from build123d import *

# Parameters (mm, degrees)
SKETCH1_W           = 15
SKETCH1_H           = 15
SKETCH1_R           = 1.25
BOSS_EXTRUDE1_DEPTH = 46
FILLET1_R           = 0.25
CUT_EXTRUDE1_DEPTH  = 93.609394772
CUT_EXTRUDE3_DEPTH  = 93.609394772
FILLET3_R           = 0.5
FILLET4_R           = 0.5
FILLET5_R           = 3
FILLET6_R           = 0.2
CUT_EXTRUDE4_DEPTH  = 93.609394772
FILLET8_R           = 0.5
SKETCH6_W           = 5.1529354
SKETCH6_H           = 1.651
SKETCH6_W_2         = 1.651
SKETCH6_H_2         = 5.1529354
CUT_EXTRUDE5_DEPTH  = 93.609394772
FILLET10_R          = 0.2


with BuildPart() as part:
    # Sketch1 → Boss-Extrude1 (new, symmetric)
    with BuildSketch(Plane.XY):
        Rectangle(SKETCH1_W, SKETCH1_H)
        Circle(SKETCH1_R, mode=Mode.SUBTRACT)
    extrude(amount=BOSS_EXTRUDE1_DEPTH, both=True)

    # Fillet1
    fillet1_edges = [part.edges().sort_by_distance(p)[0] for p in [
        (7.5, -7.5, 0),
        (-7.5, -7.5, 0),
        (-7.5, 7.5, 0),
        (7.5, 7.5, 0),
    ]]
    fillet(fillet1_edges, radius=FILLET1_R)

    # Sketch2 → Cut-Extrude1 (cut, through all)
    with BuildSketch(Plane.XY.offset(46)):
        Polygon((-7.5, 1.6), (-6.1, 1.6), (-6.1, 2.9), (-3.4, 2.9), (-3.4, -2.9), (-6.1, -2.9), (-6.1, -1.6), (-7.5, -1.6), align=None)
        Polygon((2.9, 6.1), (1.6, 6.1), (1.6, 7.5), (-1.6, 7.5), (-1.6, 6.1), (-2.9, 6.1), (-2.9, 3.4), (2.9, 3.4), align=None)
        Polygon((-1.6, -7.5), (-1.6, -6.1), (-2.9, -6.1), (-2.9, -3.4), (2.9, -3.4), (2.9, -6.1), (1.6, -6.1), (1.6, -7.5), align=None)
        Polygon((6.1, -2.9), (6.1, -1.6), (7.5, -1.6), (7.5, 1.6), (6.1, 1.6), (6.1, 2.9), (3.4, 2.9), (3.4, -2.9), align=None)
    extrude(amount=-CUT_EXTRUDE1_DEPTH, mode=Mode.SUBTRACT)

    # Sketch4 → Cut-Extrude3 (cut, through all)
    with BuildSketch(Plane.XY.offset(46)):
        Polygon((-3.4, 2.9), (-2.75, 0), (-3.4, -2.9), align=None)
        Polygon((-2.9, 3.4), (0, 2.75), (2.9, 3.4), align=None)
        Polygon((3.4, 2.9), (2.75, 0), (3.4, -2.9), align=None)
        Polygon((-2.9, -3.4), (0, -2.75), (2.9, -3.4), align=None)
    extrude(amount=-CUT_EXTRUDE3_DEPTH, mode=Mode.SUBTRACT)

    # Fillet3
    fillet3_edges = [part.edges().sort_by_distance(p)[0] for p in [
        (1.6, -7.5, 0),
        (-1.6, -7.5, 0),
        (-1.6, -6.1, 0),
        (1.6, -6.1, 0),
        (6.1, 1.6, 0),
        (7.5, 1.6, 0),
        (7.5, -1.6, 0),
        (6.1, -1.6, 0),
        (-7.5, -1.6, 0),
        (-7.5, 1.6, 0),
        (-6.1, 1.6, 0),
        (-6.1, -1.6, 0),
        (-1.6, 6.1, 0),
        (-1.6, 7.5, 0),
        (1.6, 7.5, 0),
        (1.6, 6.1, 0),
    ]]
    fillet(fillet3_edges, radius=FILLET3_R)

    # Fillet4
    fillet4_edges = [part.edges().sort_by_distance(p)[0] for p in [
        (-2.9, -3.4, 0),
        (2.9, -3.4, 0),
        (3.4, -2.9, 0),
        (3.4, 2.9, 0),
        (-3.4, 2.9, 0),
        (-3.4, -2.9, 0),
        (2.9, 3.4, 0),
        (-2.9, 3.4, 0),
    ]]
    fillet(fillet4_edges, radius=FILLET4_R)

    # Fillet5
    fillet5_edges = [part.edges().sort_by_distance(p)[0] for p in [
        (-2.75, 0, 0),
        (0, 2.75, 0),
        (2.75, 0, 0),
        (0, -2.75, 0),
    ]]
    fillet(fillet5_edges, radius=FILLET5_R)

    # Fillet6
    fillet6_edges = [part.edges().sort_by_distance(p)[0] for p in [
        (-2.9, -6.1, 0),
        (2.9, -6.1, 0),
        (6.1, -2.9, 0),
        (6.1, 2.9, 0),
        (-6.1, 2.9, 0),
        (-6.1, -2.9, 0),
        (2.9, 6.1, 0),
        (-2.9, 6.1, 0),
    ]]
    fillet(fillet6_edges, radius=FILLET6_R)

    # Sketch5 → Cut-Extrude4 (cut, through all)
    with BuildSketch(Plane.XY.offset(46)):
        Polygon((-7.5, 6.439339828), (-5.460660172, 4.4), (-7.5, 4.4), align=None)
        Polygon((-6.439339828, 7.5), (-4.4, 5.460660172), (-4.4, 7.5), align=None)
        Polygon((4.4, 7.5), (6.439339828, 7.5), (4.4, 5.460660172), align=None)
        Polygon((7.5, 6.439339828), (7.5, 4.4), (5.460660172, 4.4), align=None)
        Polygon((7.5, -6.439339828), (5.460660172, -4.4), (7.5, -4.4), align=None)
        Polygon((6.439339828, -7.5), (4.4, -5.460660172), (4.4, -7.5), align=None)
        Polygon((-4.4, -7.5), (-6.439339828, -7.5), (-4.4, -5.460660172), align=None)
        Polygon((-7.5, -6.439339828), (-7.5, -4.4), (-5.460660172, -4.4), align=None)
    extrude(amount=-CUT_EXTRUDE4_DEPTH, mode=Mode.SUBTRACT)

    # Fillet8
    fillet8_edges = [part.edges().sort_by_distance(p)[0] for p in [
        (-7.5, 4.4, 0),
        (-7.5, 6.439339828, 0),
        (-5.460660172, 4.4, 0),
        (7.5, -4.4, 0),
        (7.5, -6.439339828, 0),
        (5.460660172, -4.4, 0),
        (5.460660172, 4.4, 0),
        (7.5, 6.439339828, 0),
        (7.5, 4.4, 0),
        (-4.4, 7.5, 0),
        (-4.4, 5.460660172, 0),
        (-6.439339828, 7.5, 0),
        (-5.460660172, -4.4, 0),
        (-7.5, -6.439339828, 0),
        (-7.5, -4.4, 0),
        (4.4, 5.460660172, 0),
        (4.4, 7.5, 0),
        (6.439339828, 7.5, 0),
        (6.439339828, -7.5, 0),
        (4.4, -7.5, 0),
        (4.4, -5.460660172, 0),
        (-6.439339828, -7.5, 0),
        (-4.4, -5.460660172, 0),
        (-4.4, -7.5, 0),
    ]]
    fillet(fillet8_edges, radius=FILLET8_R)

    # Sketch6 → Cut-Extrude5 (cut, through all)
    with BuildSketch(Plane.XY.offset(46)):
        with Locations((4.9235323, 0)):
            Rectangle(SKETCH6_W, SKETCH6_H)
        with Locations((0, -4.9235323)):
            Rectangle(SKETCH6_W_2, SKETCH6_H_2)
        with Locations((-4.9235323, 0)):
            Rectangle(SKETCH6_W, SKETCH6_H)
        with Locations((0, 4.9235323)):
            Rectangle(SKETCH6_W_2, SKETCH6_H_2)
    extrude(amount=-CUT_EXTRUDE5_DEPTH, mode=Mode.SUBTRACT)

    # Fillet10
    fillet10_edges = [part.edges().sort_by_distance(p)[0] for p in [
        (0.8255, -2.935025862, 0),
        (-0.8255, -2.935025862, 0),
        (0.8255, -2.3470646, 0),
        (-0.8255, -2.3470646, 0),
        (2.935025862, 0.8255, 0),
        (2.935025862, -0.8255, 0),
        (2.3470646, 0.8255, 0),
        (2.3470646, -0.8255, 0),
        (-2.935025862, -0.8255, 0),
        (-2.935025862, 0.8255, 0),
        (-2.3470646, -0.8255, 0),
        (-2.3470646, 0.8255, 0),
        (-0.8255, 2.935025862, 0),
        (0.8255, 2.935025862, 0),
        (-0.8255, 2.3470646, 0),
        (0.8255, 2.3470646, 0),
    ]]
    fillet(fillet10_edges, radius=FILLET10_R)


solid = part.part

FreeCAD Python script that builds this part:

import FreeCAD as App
import Part
import Sketcher
Q = App.Units.Quantity


def edges_at(feature, points):
    """Names of the edges that pass closest to the given points."""
    edges = feature.Shape.Edges
    near = lambda p: min(range(len(edges)), key=lambda i: edges[i].distToShape(Part.Vertex(*p))[0])
    return sorted({f"Edge{near(p) + 1}" for p in points})

doc = App.newDocument("Part")
body = doc.addObject("PartDesign::Body", "Body")

# Sketch on XY plane
sketch1 = body.newObject("Sketcher::SketchObject", "Sketch")
sketch1.AttachmentSupport = (doc.getObject("XY_Plane"), [""])
sketch1.MapMode = "FlatFace"
sketch1.addGeometry([
    Part.LineSegment(App.Vector(-7.5, 7.5, 0), App.Vector(-7.5, -7.5, 0)),  # 0
    Part.LineSegment(App.Vector(-7.5, -7.5, 0), App.Vector(7.5, -7.5, 0)),  # 1
    Part.LineSegment(App.Vector(7.5, -7.5, 0), App.Vector(7.5, 7.5, 0)),  # 2
    Part.LineSegment(App.Vector(7.5, 7.5, 0), App.Vector(-7.5, 7.5, 0)),  # 3
    Part.Circle(App.Vector(0, 0, 0), App.Vector(0, 0, 1), 1.25),  # 4
], False)
sketch1.addConstraint([
    Sketcher.Constraint("Coincident", 0, 2, 1, 1),
    Sketcher.Constraint("Coincident", 1, 2, 2, 1),
    Sketcher.Constraint("Coincident", 2, 2, 3, 1),
    Sketcher.Constraint("Coincident", 3, 2, 0, 1),
    Sketcher.Constraint("Vertical", 0),
    Sketcher.Constraint("Horizontal", 1),
    Sketcher.Constraint("Vertical", 2),
    Sketcher.Constraint("Horizontal", 3),
    Sketcher.Constraint("Coincident", 4, 3, -1, 1),
    Sketcher.Constraint("Symmetric", 0, 2, 2, 2, -1, 1),
    Sketcher.Constraint("Equal", 3, 0),
    Sketcher.Constraint("Diameter", 4, Q("2.5 mm")),
    Sketcher.Constraint("DistanceX", 1, 1, 1, 2, Q("15 mm")),
])
pad1 = body.newObject("PartDesign::Pad", "Pad")
pad1.Profile = sketch1
pad1.Length = 92
pad1.Midplane = True
doc.recompute()

fillet = body.newObject("PartDesign::Fillet", "Fillet")
fillet.Base = (pad1, edges_at(pad1, [
    (7.5, -7.5, 0),
    (-7.5, -7.5, 0),
    (-7.5, 7.5, 0),
    (7.5, 7.5, 0),
]))
fillet.Radius = 0.25

# Sketch on XY plane
sketch2 = body.newObject("Sketcher::SketchObject", "Sketch001")
sketch2.AttachmentSupport = (doc.getObject("XY_Plane"), [""])
sketch2.MapMode = "FlatFace"
sketch2.AttachmentOffset = App.Placement(App.Vector(0, 0, 46), App.Rotation())
sketch2.addGeometry([
    Part.LineSegment(App.Vector(-6.1, 1.6, 0), App.Vector(-7.5, 1.6, 0)),  # 0
    Part.LineSegment(App.Vector(-7.5, 1.6, 0), App.Vector(-7.5, -1.6, 0)),  # 1
    Part.LineSegment(App.Vector(-7.5, -1.6, 0), App.Vector(-6.1, -1.6, 0)),  # 2
    Part.LineSegment(App.Vector(-6.1, -1.6, 0), App.Vector(-6.1, -2.9, 0)),  # 3
    Part.LineSegment(App.Vector(-6.1, -2.9, 0), App.Vector(-3.4, -2.9, 0)),  # 4
    Part.LineSegment(App.Vector(-3.4, -2.9, 0), App.Vector(-3.4, 2.9, 0)),  # 5
    Part.LineSegment(App.Vector(-3.4, 2.9, 0), App.Vector(-6.1, 2.9, 0)),  # 6
    Part.LineSegment(App.Vector(-6.1, 2.9, 0), App.Vector(-6.1, 1.6, 0)),  # 7
    Part.LineSegment(App.Vector(2.9, 6.1, 0), App.Vector(1.6, 6.1, 0)),  # 8
    Part.LineSegment(App.Vector(1.6, 6.1, 0), App.Vector(1.6, 7.5, 0)),  # 9
    Part.LineSegment(App.Vector(1.6, 7.5, 0), App.Vector(-1.6, 7.5, 0)),  # 10
    Part.LineSegment(App.Vector(-1.6, 7.5, 0), App.Vector(-1.6, 6.1, 0)),  # 11
    Part.LineSegment(App.Vector(-1.6, 6.1, 0), App.Vector(-2.9, 6.1, 0)),  # 12
    Part.LineSegment(App.Vector(-2.9, 6.1, 0), App.Vector(-2.9, 3.4, 0)),  # 13
    Part.LineSegment(App.Vector(-2.9, 3.4, 0), App.Vector(2.9, 3.4, 0)),  # 14
    Part.LineSegment(App.Vector(2.9, 3.4, 0), App.Vector(2.9, 6.1, 0)),  # 15
    Part.LineSegment(App.Vector(-1.6, -6.1, 0), App.Vector(-1.6, -7.5, 0)),  # 16
    Part.LineSegment(App.Vector(-1.6, -7.5, 0), App.Vector(1.6, -7.5, 0)),  # 17
    Part.LineSegment(App.Vector(1.6, -7.5, 0), App.Vector(1.6, -6.1, 0)),  # 18
    Part.LineSegment(App.Vector(1.6, -6.1, 0), App.Vector(2.9, -6.1, 0)),  # 19
    Part.LineSegment(App.Vector(2.9, -6.1, 0), App.Vector(2.9, -3.4, 0)),  # 20
    Part.LineSegment(App.Vector(2.9, -3.4, 0), App.Vector(-2.9, -3.4, 0)),  # 21
    Part.LineSegment(App.Vector(-2.9, -3.4, 0), App.Vector(-2.9, -6.1, 0)),  # 22
    Part.LineSegment(App.Vector(-2.9, -6.1, 0), App.Vector(-1.6, -6.1, 0)),  # 23
    Part.LineSegment(App.Vector(6.1, -2.9, 0), App.Vector(6.1, -1.6, 0)),  # 24
    Part.LineSegment(App.Vector(6.1, -1.6, 0), App.Vector(7.5, -1.6, 0)),  # 25
    Part.LineSegment(App.Vector(7.5, -1.6, 0), App.Vector(7.5, 1.6, 0)),  # 26
    Part.LineSegment(App.Vector(7.5, 1.6, 0), App.Vector(6.1, 1.6, 0)),  # 27
    Part.LineSegment(App.Vector(6.1, 1.6, 0), App.Vector(6.1, 2.9, 0)),  # 28
    Part.LineSegment(App.Vector(6.1, 2.9, 0), App.Vector(3.4, 2.9, 0)),  # 29
    Part.LineSegment(App.Vector(3.4, 2.9, 0), App.Vector(3.4, -2.9, 0)),  # 30
    Part.LineSegment(App.Vector(3.4, -2.9, 0), App.Vector(6.1, -2.9, 0)),  # 31
], False)
sketch2.addConstraint([
    Sketcher.Constraint("Coincident", 0, 2, 1, 1),
    Sketcher.Constraint("Coincident", 1, 2, 2, 1),
    Sketcher.Constraint("Coincident", 2, 2, 3, 1),
    Sketcher.Constraint("Coincident", 3, 2, 4, 1),
    Sketcher.Constraint("Coincident", 4, 2, 5, 1),
    Sketcher.Constraint("Coincident", 5, 2, 6, 1),
    Sketcher.Constraint("Coincident", 6, 2, 7, 1),
    Sketcher.Constraint("Coincident", 7, 2, 0, 1),
    Sketcher.Constraint("Coincident", 8, 2, 9, 1),
    Sketcher.Constraint("Coincident", 9, 2, 10, 1),
    Sketcher.Constraint("Coincident", 10, 2, 11, 1),
    Sketcher.Constraint("Coincident", 11, 2, 12, 1),
    Sketcher.Constraint("Coincident", 12, 2, 13, 1),
    Sketcher.Constraint("Coincident", 13, 2, 14, 1),
    Sketcher.Constraint("Coincident", 14, 2, 15, 1),
    Sketcher.Constraint("Coincident", 15, 2, 8, 1),
    Sketcher.Constraint("Coincident", 16, 2, 17, 1),
    Sketcher.Constraint("Coincident", 17, 2, 18, 1),
    Sketcher.Constraint("Coincident", 18, 2, 19, 1),
    Sketcher.Constraint("Coincident", 19, 2, 20, 1),
    Sketcher.Constraint("Coincident", 20, 2, 21, 1),
    Sketcher.Constraint("Coincident", 21, 2, 22, 1),
    Sketcher.Constraint("Coincident", 22, 2, 23, 1),
    Sketcher.Constraint("Coincident", 23, 2, 16, 1),
    Sketcher.Constraint("Coincident", 24, 2, 25, 1),
    Sketcher.Constraint("Coincident", 25, 2, 26, 1),
    Sketcher.Constraint("Coincident", 26, 2, 27, 1),
    Sketcher.Constraint("Coincident", 27, 2, 28, 1),
    Sketcher.Constraint("Coincident", 28, 2, 29, 1),
    Sketcher.Constraint("Coincident", 29, 2, 30, 1),
    Sketcher.Constraint("Coincident", 30, 2, 31, 1),
    Sketcher.Constraint("Coincident", 31, 2, 24, 1),
    Sketcher.Constraint("Horizontal", 0),
    Sketcher.Constraint("Vertical", 1),
    Sketcher.Constraint("Horizontal", 2),
    Sketcher.Constraint("Vertical", 3),
    Sketcher.Constraint("Horizontal", 4),
    Sketcher.Constraint("Vertical", 5),
    Sketcher.Constraint("Horizontal", 6),
    Sketcher.Constraint("Vertical", 7),
    Sketcher.Constraint("Horizontal", 8),
    Sketcher.Constraint("Vertical", 9),
    Sketcher.Constraint("Horizontal", 10),
    Sketcher.Constraint("Vertical", 11),
    Sketcher.Constraint("Horizontal", 12),
    Sketcher.Constraint("Vertical", 13),
    Sketcher.Constraint("Horizontal", 14),
    Sketcher.Constraint("Vertical", 15),
    Sketcher.Constraint("Vertical", 16),
    Sketcher.Constraint("Horizontal", 17),
    Sketcher.Constraint("Vertical", 18),
    Sketcher.Constraint("Horizontal", 19),
    Sketcher.Constraint("Vertical", 20),
    Sketcher.Constraint("Horizontal", 21),
    Sketcher.Constraint("Vertical", 22),
    Sketcher.Constraint("Horizontal", 23),
    Sketcher.Constraint("Vertical", 24),
    Sketcher.Constraint("Horizontal", 25),
    Sketcher.Constraint("Vertical", 26),
    Sketcher.Constraint("Horizontal", 27),
    Sketcher.Constraint("Vertical", 28),
    Sketcher.Constraint("Horizontal", 29),
    Sketcher.Constraint("Vertical", 30),
    Sketcher.Constraint("Horizontal", 31),
    Sketcher.Constraint("Symmetric", 9, 2, 16, 2, -1, 1),
    Sketcher.Constraint("Symmetric", 11, 2, 18, 2, -1, 1),
    Sketcher.Constraint("Symmetric", 13, 2, 20, 2, -1, 1),
    Sketcher.Constraint("Symmetric", 15, 2, 22, 2, -1, 1),
    Sketcher.Constraint("Symmetric", 7, 2, 24, 2, -1, 1),
    Sketcher.Constraint("Symmetric", 1, 2, 26, 2, -1, 1),
    Sketcher.Constraint("Symmetric", 3, 2, 28, 2, -1, 1),
    Sketcher.Constraint("Symmetric", 5, 2, 30, 2, -1, 1),
    Sketcher.Constraint("Symmetric", 8, 2, 11, 2, -2),
    Sketcher.Constraint("Symmetric", 2, 2, 24, 2, -2),
    Sketcher.Constraint("Horizontal", 6, 2, 28, 2),
    Sketcher.Constraint("Vertical", 15, 2, 19, 2),
    Sketcher.Constraint("Equal", 17, 1),
    Sketcher.Constraint("Equal", 23, 3),
    Sketcher.Constraint("Equal", 27, 9),
    Sketcher.Constraint("Equal", 31, 13),
    Sketcher.Constraint("DistanceX", 0, 2, 0, 1, Q("1.4 mm")),
    Sketcher.Constraint("DistanceX", 4, 1, 4, 2, Q("2.7 mm")),
    Sketcher.Constraint("DistanceX", 8, 2, 8, 1, Q("1.3 mm")),
    Sketcher.Constraint("DistanceX", 10, 2, 10, 1, Q("3.2 mm")),
    Sketcher.Constraint("DistanceX", 5, 2, 8, 2, Q("5 mm")),
    Sketcher.Constraint("DistanceY", 4, 2, 8, 2, Q("9 mm")),
])
pocket1 = body.newObject("PartDesign::Pocket", "Pocket")
pocket1.Profile = sketch2
pocket1.Type = "ThroughAll"

# Sketch on XY plane
sketch3 = body.newObject("Sketcher::SketchObject", "Sketch002")
sketch3.AttachmentSupport = (doc.getObject("XY_Plane"), [""])
sketch3.MapMode = "FlatFace"
sketch3.AttachmentOffset = App.Placement(App.Vector(0, 0, 46), App.Rotation())
sketch3.addGeometry([
    Part.LineSegment(App.Vector(-2.75, 0, 0), App.Vector(-3.4, 2.9, 0)),  # 0
    Part.LineSegment(App.Vector(-3.4, 2.9, 0), App.Vector(-3.4, -2.9, 0)),  # 1
    Part.LineSegment(App.Vector(-3.4, -2.9, 0), App.Vector(-2.75, 0, 0)),  # 2
    Part.LineSegment(App.Vector(-2.9, 3.4, 0), App.Vector(0, 2.75, 0)),  # 3
    Part.LineSegment(App.Vector(0, 2.75, 0), App.Vector(2.9, 3.4, 0)),  # 4
    Part.LineSegment(App.Vector(2.9, 3.4, 0), App.Vector(-2.9, 3.4, 0)),  # 5
    Part.LineSegment(App.Vector(3.4, 2.9, 0), App.Vector(2.75, 0, 0)),  # 6
    Part.LineSegment(App.Vector(2.75, 0, 0), App.Vector(3.4, -2.9, 0)),  # 7
    Part.LineSegment(App.Vector(3.4, -2.9, 0), App.Vector(3.4, 2.9, 0)),  # 8
    Part.LineSegment(App.Vector(0, -2.75, 0), App.Vector(-2.9, -3.4, 0)),  # 9
    Part.LineSegment(App.Vector(-2.9, -3.4, 0), App.Vector(2.9, -3.4, 0)),  # 10
    Part.LineSegment(App.Vector(2.9, -3.4, 0), App.Vector(0, -2.75, 0)),  # 11
], False)
sketch3.addConstraint([
    Sketcher.Constraint("Coincident", 0, 2, 1, 1),
    Sketcher.Constraint("Coincident", 1, 2, 2, 1),
    Sketcher.Constraint("Coincident", 2, 2, 0, 1),
    Sketcher.Constraint("Coincident", 3, 2, 4, 1),
    Sketcher.Constraint("Coincident", 4, 2, 5, 1),
    Sketcher.Constraint("Coincident", 5, 2, 3, 1),
    Sketcher.Constraint("Coincident", 6, 2, 7, 1),
    Sketcher.Constraint("Coincident", 7, 2, 8, 1),
    Sketcher.Constraint("Coincident", 8, 2, 6, 1),
    Sketcher.Constraint("Coincident", 9, 2, 10, 1),
    Sketcher.Constraint("Coincident", 10, 2, 11, 1),
    Sketcher.Constraint("Coincident", 11, 2, 9, 1),
    Sketcher.Constraint("Vertical", 1),
    Sketcher.Constraint("Horizontal", 5),
    Sketcher.Constraint("Vertical", 8),
    Sketcher.Constraint("Horizontal", 10),
    Sketcher.Constraint("Symmetric", 2, 2, 6, 2, -1, 1),
    Sketcher.Constraint("Symmetric", 0, 2, 7, 2, -1, 1),
    Sketcher.Constraint("Symmetric", 4, 2, 9, 2, -1, 1),
    Sketcher.Constraint("Symmetric", 3, 2, 11, 2, -1, 1),
    Sketcher.Constraint("PointOnObject", 2, 2, -1),
    Sketcher.Constraint("PointOnObject", 3, 2, -2),
    Sketcher.Constraint("Perpendicular", 2, 3),
    Sketcher.Constraint("Perpendicular", 0, 4),
    Sketcher.Constraint("Perpendicular", 3, 6),
    Sketcher.Constraint("Perpendicular", 6, 11),
    Sketcher.Constraint("Horizontal", 1, 2, 7, 2),
    Sketcher.Constraint("Equal", 10, 1),
    Sketcher.Constraint("DistanceX", 5, 2, 5, 1, Q("5.8 mm")),
    Sketcher.Constraint("DistanceX", 0, 2, -1, 1, Q("3.4 mm")),
    Sketcher.Constraint("DistanceY", -1, 1, 4, 2, Q("3.4 mm")),
    Sketcher.Constraint("DistanceX", 2, 2, 6, 2, Q("5.5 mm")),
])
pocket2 = body.newObject("PartDesign::Pocket", "Pocket001")
pocket2.Profile = sketch3
pocket2.Type = "ThroughAll"
doc.recompute()

fillet2 = body.newObject("PartDesign::Fillet", "Fillet001")
fillet2.Base = (pocket2, edges_at(pocket2, [
    (1.6, -7.5, 0),
    (-1.6, -7.5, 0),
    (-1.6, -6.1, 0),
    (1.6, -6.1, 0),
    (6.1, 1.6, 0),
    (7.5, 1.6, 0),
    (7.5, -1.6, 0),
    (6.1, -1.6, 0),
    (-7.5, -1.6, 0),
    (-7.5, 1.6, 0),
    (-6.1, 1.6, 0),
    (-6.1, -1.6, 0),
    (-1.6, 6.1, 0),
    (-1.6, 7.5, 0),
    (1.6, 7.5, 0),
    (1.6, 6.1, 0),
]))
fillet2.Radius = 0.5
doc.recompute()

fillet3 = body.newObject("PartDesign::Fillet", "Fillet002")
fillet3.Base = (fillet2, edges_at(fillet2, [
    (-2.9, -3.4, 0),
    (2.9, -3.4, 0),
    (3.4, -2.9, 0),
    (3.4, 2.9, 0),
    (-3.4, 2.9, 0),
    (-3.4, -2.9, 0),
    (2.9, 3.4, 0),
    (-2.9, 3.4, 0),
]))
fillet3.Radius = 0.5
doc.recompute()

fillet4 = body.newObject("PartDesign::Fillet", "Fillet003")
fillet4.Base = (fillet3, edges_at(fillet3, [
    (-2.75, 0, 0),
    (0, 2.75, 0),
    (2.75, 0, 0),
    (0, -2.75, 0),
]))
fillet4.Radius = 3
doc.recompute()

fillet5 = body.newObject("PartDesign::Fillet", "Fillet004")
fillet5.Base = (fillet4, edges_at(fillet4, [
    (-2.9, -6.1, 0),
    (2.9, -6.1, 0),
    (6.1, -2.9, 0),
    (6.1, 2.9, 0),
    (-6.1, 2.9, 0),
    (-6.1, -2.9, 0),
    (2.9, 6.1, 0),
    (-2.9, 6.1, 0),
]))
fillet5.Radius = 0.2

# Sketch on XY plane
sketch4 = body.newObject("Sketcher::SketchObject", "Sketch003")
sketch4.AttachmentSupport = (doc.getObject("XY_Plane"), [""])
sketch4.MapMode = "FlatFace"
sketch4.AttachmentOffset = App.Placement(App.Vector(0, 0, 46), App.Rotation())
sketch4.addGeometry([
    Part.LineSegment(App.Vector(-5.46066, 4.4, 0), App.Vector(-7.5, 6.43934, 0)),  # 0
    Part.LineSegment(App.Vector(-7.5, 6.43934, 0), App.Vector(-7.5, 4.4, 0)),  # 1
    Part.LineSegment(App.Vector(-7.5, 4.4, 0), App.Vector(-5.46066, 4.4, 0)),  # 2
    Part.LineSegment(App.Vector(-6.43934, 7.5, 0), App.Vector(-4.4, 5.46066, 0)),  # 3
    Part.LineSegment(App.Vector(-4.4, 5.46066, 0), App.Vector(-4.4, 7.5, 0)),  # 4
    Part.LineSegment(App.Vector(-4.4, 7.5, 0), App.Vector(-6.43934, 7.5, 0)),  # 5
    Part.LineSegment(App.Vector(6.43934, 7.5, 0), App.Vector(4.4, 7.5, 0)),  # 6
    Part.LineSegment(App.Vector(4.4, 7.5, 0), App.Vector(4.4, 5.46066, 0)),  # 7
    Part.LineSegment(App.Vector(4.4, 5.46066, 0), App.Vector(6.43934, 7.5, 0)),  # 8
    Part.LineSegment(App.Vector(7.5, 4.4, 0), App.Vector(7.5, 6.43934, 0)),  # 9
    Part.LineSegment(App.Vector(7.5, 6.43934, 0), App.Vector(5.46066, 4.4, 0)),  # 10
    Part.LineSegment(App.Vector(5.46066, 4.4, 0), App.Vector(7.5, 4.4, 0)),  # 11
    Part.LineSegment(App.Vector(5.46066, -4.4, 0), App.Vector(7.5, -6.43934, 0)),  # 12
    Part.LineSegment(App.Vector(7.5, -6.43934, 0), App.Vector(7.5, -4.4, 0)),  # 13
    Part.LineSegment(App.Vector(7.5, -4.4, 0), App.Vector(5.46066, -4.4, 0)),  # 14
    Part.LineSegment(App.Vector(6.43934, -7.5, 0), App.Vector(4.4, -5.46066, 0)),  # 15
    Part.LineSegment(App.Vector(4.4, -5.46066, 0), App.Vector(4.4, -7.5, 0)),  # 16
    Part.LineSegment(App.Vector(4.4, -7.5, 0), App.Vector(6.43934, -7.5, 0)),  # 17
    Part.LineSegment(App.Vector(-6.43934, -7.5, 0), App.Vector(-4.4, -7.5, 0)),  # 18
    Part.LineSegment(App.Vector(-4.4, -7.5, 0), App.Vector(-4.4, -5.46066, 0)),  # 19
    Part.LineSegment(App.Vector(-4.4, -5.46066, 0), App.Vector(-6.43934, -7.5, 0)),  # 20
    Part.LineSegment(App.Vector(-7.5, -4.4, 0), App.Vector(-7.5, -6.43934, 0)),  # 21
    Part.LineSegment(App.Vector(-7.5, -6.43934, 0), App.Vector(-5.46066, -4.4, 0)),  # 22
    Part.LineSegment(App.Vector(-5.46066, -4.4, 0), App.Vector(-7.5, -4.4, 0)),  # 23
], False)
sketch4.addConstraint([
    Sketcher.Constraint("Coincident", 0, 2, 1, 1),
    Sketcher.Constraint("Coincident", 1, 2, 2, 1),
    Sketcher.Constraint("Coincident", 2, 2, 0, 1),
    Sketcher.Constraint("Coincident", 3, 2, 4, 1),
    Sketcher.Constraint("Coincident", 4, 2, 5, 1),
    Sketcher.Constraint("Coincident", 5, 2, 3, 1),
    Sketcher.Constraint("Coincident", 6, 2, 7, 1),
    Sketcher.Constraint("Coincident", 7, 2, 8, 1),
    Sketcher.Constraint("Coincident", 8, 2, 6, 1),
    Sketcher.Constraint("Coincident", 9, 2, 10, 1),
    Sketcher.Constraint("Coincident", 10, 2, 11, 1),
    Sketcher.Constraint("Coincident", 11, 2, 9, 1),
    Sketcher.Constraint("Coincident", 12, 2, 13, 1),
    Sketcher.Constraint("Coincident", 13, 2, 14, 1),
    Sketcher.Constraint("Coincident", 14, 2, 12, 1),
    Sketcher.Constraint("Coincident", 15, 2, 16, 1),
    Sketcher.Constraint("Coincident", 16, 2, 17, 1),
    Sketcher.Constraint("Coincident", 17, 2, 15, 1),
    Sketcher.Constraint("Coincident", 18, 2, 19, 1),
    Sketcher.Constraint("Coincident", 19, 2, 20, 1),
    Sketcher.Constraint("Coincident", 20, 2, 18, 1),
    Sketcher.Constraint("Coincident", 21, 2, 22, 1),
    Sketcher.Constraint("Coincident", 22, 2, 23, 1),
    Sketcher.Constraint("Coincident", 23, 2, 21, 1),
    Sketcher.Constraint("Vertical", 1),
    Sketcher.Constraint("Horizontal", 2),
    Sketcher.Constraint("Vertical", 4),
    Sketcher.Constraint("Horizontal", 5),
    Sketcher.Constraint("Horizontal", 6),
    Sketcher.Constraint("Vertical", 7),
    Sketcher.Constraint("Vertical", 9),
    Sketcher.Constraint("Horizontal", 11),
    Sketcher.Constraint("Vertical", 13),
    Sketcher.Constraint("Horizontal", 14),
    Sketcher.Constraint("Vertical", 16),
    Sketcher.Constraint("Horizontal", 17),
    Sketcher.Constraint("Horizontal", 18),
    Sketcher.Constraint("Vertical", 19),
    Sketcher.Constraint("Vertical", 21),
    Sketcher.Constraint("Horizontal", 23),
    Sketcher.Constraint("Symmetric", 0, 2, 12, 2, -1, 1),
    Sketcher.Constraint("Symmetric", 2, 2, 14, 2, -1, 1),
    Sketcher.Constraint("Symmetric", 3, 2, 15, 2, -1, 1),
    Sketcher.Constraint("Symmetric", 5, 2, 17, 2, -1, 1),
    Sketcher.Constraint("Symmetric", 6, 2, 18, 2, -1, 1),
    Sketcher.Constraint("Symmetric", 9, 2, 21, 2, -1, 1),
    Sketcher.Constraint("Symmetric", 10, 2, 22, 2, -1, 1),
    Sketcher.Constraint("Symmetric", 4, 2, 6, 2, -2),
    Sketcher.Constraint("Symmetric", 0, 2, 9, 2, -2),
    Sketcher.Constraint("Symmetric", 2, 2, 10, 2, -2),
    Sketcher.Constraint("Parallel", 0, 3),
    Sketcher.Constraint("Perpendicular", 3, 8),
    Sketcher.Constraint("Parallel", 8, 10),
    Sketcher.Constraint("Perpendicular", 15, 20),
    Sketcher.Constraint("Horizontal", 3, 2, 7, 2),
    Sketcher.Constraint("Horizontal", 15, 2, 19, 2),
    Sketcher.Constraint("Equal", 2, 5),
    Sketcher.Constraint("DistanceX", 0, 2, -1, 1, Q("7.5 mm")),
    Sketcher.Constraint("DistanceY", -1, 1, 1, 2, Q("4.4 mm")),
    Sketcher.Constraint("DistanceX", 3, 2, -1, 1, Q("4.4 mm")),
    Sketcher.Constraint("DistanceY", -1, 1, 4, 2, Q("7.5 mm")),
    Sketcher.Constraint("DistanceX", 2, 1, 2, 2, Q("2.03934 mm")),
])
pocket3 = body.newObject("PartDesign::Pocket", "Pocket002")
pocket3.Profile = sketch4
pocket3.Type = "ThroughAll"
doc.recompute()

fillet6 = body.newObject("PartDesign::Fillet", "Fillet005")
fillet6.Base = (pocket3, edges_at(pocket3, [
    (-7.5, 4.4, 0),
    (-7.5, 6.439, 0),
    (-5.461, 4.4, 0),
    (7.5, -4.4, 0),
    (7.5, -6.439, 0),
    (5.461, -4.4, 0),
    (5.461, 4.4, 0),
    (7.5, 6.439, 0),
    (7.5, 4.4, 0),
    (-4.4, 7.5, 0),
    (-4.4, 5.461, 0),
    (-6.439, 7.5, 0),
    (-5.461, -4.4, 0),
    (-7.5, -6.439, 0),
    (-7.5, -4.4, 0),
    (4.4, 5.461, 0),
    (4.4, 7.5, 0),
    (6.439, 7.5, 0),
    (6.439, -7.5, 0),
    (4.4, -7.5, 0),
    (4.4, -5.461, 0),
    (-6.439, -7.5, 0),
    (-4.4, -5.461, 0),
    (-4.4, -7.5, 0),
]))
fillet6.Radius = 0.5

# Sketch on XY plane
sketch5 = body.newObject("Sketcher::SketchObject", "Sketch004")
sketch5.AttachmentSupport = (doc.getObject("XY_Plane"), [""])
sketch5.MapMode = "FlatFace"
sketch5.AttachmentOffset = App.Placement(App.Vector(0, 0, 46), App.Rotation())
sketch5.addGeometry([
    Part.LineSegment(App.Vector(2.347065, 0.8255, 0), App.Vector(2.347065, -0.8255, 0)),  # 0
    Part.LineSegment(App.Vector(2.347065, -0.8255, 0), App.Vector(7.5, -0.8255, 0)),  # 1
    Part.LineSegment(App.Vector(7.5, -0.8255, 0), App.Vector(7.5, 0.8255, 0)),  # 2
    Part.LineSegment(App.Vector(7.5, 0.8255, 0), App.Vector(2.347065, 0.8255, 0)),  # 3
    Part.LineSegment(App.Vector(-0.8255, -2.347065, 0), App.Vector(-0.8255, -7.5, 0)),  # 4
    Part.LineSegment(App.Vector(-0.8255, -7.5, 0), App.Vector(0.8255, -7.5, 0)),  # 5
    Part.LineSegment(App.Vector(0.8255, -7.5, 0), App.Vector(0.8255, -2.347065, 0)),  # 6
    Part.LineSegment(App.Vector(0.8255, -2.347065, 0), App.Vector(-0.8255, -2.347065, 0)),  # 7
    Part.LineSegment(App.Vector(-7.5, 0.8255, 0), App.Vector(-7.5, -0.8255, 0)),  # 8
    Part.LineSegment(App.Vector(-7.5, -0.8255, 0), App.Vector(-2.347065, -0.8255, 0)),  # 9
    Part.LineSegment(App.Vector(-2.347065, -0.8255, 0), App.Vector(-2.347065, 0.8255, 0)),  # 10
    Part.LineSegment(App.Vector(-2.347065, 0.8255, 0), App.Vector(-7.5, 0.8255, 0)),  # 11
    Part.LineSegment(App.Vector(-0.8255, 7.5, 0), App.Vector(-0.8255, 2.347065, 0)),  # 12
    Part.LineSegment(App.Vector(-0.8255, 2.347065, 0), App.Vector(0.8255, 2.347065, 0)),  # 13
    Part.LineSegment(App.Vector(0.8255, 2.347065, 0), App.Vector(0.8255, 7.5, 0)),  # 14
    Part.LineSegment(App.Vector(0.8255, 7.5, 0), App.Vector(-0.8255, 7.5, 0)),  # 15
], False)
sketch5.addConstraint([
    Sketcher.Constraint("Coincident", 0, 2, 1, 1),
    Sketcher.Constraint("Coincident", 1, 2, 2, 1),
    Sketcher.Constraint("Coincident", 2, 2, 3, 1),
    Sketcher.Constraint("Coincident", 3, 2, 0, 1),
    Sketcher.Constraint("Coincident", 4, 2, 5, 1),
    Sketcher.Constraint("Coincident", 5, 2, 6, 1),
    Sketcher.Constraint("Coincident", 6, 2, 7, 1),
    Sketcher.Constraint("Coincident", 7, 2, 4, 1),
    Sketcher.Constraint("Coincident", 8, 2, 9, 1),
    Sketcher.Constraint("Coincident", 9, 2, 10, 1),
    Sketcher.Constraint("Coincident", 10, 2, 11, 1),
    Sketcher.Constraint("Coincident", 11, 2, 8, 1),
    Sketcher.Constraint("Coincident", 12, 2, 13, 1),
    Sketcher.Constraint("Coincident", 13, 2, 14, 1),
    Sketcher.Constraint("Coincident", 14, 2, 15, 1),
    Sketcher.Constraint("Coincident", 15, 2, 12, 1),
    Sketcher.Constraint("Vertical", 0),
    Sketcher.Constraint("Horizontal", 1),
    Sketcher.Constraint("Vertical", 2),
    Sketcher.Constraint("Horizontal", 3),
    Sketcher.Constraint("Vertical", 4),
    Sketcher.Constraint("Horizontal", 5),
    Sketcher.Constraint("Vertical", 6),
    Sketcher.Constraint("Horizontal", 7),
    Sketcher.Constraint("Vertical", 8),
    Sketcher.Constraint("Horizontal", 9),
    Sketcher.Constraint("Vertical", 10),
    Sketcher.Constraint("Horizontal", 11),
    Sketcher.Constraint("Vertical", 12),
    Sketcher.Constraint("Horizontal", 13),
    Sketcher.Constraint("Vertical", 14),
    Sketcher.Constraint("Horizontal", 15),
    Sketcher.Constraint("Symmetric", 2, 2, 8, 2, -1, 1),
    Sketcher.Constraint("Symmetric", 0, 2, 10, 2, -1, 1),
    Sketcher.Constraint("Symmetric", 6, 2, 12, 2, -1, 1),
    Sketcher.Constraint("Symmetric", 4, 2, 14, 2, -1, 1),
    Sketcher.Constraint("Horizontal", 1, 2, 8, 2),
    Sketcher.Constraint("Vertical", 7, 2, 12, 2),
    Sketcher.Constraint("Equal", 15, 0),
    Sketcher.Constraint("Equal", 11, 4),
    Sketcher.Constraint("DistanceX", -1, 1, 1, 2, Q("7.5 mm")),
    Sketcher.Constraint("DistanceY", 4, 2, -1, 1, Q("7.5 mm")),
    Sketcher.Constraint("DistanceX", 5, 1, 5, 2, Q("1.651 mm")),
    Sketcher.Constraint("DistanceX", 1, 1, 1, 2, Q("5.152935 mm")),
])
pocket4 = body.newObject("PartDesign::Pocket", "Pocket003")
pocket4.Profile = sketch5
pocket4.Type = "ThroughAll"
doc.recompute()

fillet7 = body.newObject("PartDesign::Fillet", "Fillet006")
fillet7.Base = (pocket4, edges_at(pocket4, [
    (0.826, -2.935, 0),
    (-0.826, -2.935, 0),
    (0.826, -2.347, 0),
    (-0.826, -2.347, 0),
    (2.935, 0.826, 0),
    (2.935, -0.826, 0),
    (2.347, 0.826, 0),
    (2.347, -0.826, 0),
    (-2.935, -0.826, 0),
    (-2.935, 0.826, 0),
    (-2.347, -0.826, 0),
    (-2.347, 0.826, 0),
    (-0.826, 2.935, 0),
    (0.826, 2.935, 0),
    (-0.826, 2.347, 0),
    (0.826, 2.347, 0),
]))
fillet7.Radius = 0.2

doc.recompute()
